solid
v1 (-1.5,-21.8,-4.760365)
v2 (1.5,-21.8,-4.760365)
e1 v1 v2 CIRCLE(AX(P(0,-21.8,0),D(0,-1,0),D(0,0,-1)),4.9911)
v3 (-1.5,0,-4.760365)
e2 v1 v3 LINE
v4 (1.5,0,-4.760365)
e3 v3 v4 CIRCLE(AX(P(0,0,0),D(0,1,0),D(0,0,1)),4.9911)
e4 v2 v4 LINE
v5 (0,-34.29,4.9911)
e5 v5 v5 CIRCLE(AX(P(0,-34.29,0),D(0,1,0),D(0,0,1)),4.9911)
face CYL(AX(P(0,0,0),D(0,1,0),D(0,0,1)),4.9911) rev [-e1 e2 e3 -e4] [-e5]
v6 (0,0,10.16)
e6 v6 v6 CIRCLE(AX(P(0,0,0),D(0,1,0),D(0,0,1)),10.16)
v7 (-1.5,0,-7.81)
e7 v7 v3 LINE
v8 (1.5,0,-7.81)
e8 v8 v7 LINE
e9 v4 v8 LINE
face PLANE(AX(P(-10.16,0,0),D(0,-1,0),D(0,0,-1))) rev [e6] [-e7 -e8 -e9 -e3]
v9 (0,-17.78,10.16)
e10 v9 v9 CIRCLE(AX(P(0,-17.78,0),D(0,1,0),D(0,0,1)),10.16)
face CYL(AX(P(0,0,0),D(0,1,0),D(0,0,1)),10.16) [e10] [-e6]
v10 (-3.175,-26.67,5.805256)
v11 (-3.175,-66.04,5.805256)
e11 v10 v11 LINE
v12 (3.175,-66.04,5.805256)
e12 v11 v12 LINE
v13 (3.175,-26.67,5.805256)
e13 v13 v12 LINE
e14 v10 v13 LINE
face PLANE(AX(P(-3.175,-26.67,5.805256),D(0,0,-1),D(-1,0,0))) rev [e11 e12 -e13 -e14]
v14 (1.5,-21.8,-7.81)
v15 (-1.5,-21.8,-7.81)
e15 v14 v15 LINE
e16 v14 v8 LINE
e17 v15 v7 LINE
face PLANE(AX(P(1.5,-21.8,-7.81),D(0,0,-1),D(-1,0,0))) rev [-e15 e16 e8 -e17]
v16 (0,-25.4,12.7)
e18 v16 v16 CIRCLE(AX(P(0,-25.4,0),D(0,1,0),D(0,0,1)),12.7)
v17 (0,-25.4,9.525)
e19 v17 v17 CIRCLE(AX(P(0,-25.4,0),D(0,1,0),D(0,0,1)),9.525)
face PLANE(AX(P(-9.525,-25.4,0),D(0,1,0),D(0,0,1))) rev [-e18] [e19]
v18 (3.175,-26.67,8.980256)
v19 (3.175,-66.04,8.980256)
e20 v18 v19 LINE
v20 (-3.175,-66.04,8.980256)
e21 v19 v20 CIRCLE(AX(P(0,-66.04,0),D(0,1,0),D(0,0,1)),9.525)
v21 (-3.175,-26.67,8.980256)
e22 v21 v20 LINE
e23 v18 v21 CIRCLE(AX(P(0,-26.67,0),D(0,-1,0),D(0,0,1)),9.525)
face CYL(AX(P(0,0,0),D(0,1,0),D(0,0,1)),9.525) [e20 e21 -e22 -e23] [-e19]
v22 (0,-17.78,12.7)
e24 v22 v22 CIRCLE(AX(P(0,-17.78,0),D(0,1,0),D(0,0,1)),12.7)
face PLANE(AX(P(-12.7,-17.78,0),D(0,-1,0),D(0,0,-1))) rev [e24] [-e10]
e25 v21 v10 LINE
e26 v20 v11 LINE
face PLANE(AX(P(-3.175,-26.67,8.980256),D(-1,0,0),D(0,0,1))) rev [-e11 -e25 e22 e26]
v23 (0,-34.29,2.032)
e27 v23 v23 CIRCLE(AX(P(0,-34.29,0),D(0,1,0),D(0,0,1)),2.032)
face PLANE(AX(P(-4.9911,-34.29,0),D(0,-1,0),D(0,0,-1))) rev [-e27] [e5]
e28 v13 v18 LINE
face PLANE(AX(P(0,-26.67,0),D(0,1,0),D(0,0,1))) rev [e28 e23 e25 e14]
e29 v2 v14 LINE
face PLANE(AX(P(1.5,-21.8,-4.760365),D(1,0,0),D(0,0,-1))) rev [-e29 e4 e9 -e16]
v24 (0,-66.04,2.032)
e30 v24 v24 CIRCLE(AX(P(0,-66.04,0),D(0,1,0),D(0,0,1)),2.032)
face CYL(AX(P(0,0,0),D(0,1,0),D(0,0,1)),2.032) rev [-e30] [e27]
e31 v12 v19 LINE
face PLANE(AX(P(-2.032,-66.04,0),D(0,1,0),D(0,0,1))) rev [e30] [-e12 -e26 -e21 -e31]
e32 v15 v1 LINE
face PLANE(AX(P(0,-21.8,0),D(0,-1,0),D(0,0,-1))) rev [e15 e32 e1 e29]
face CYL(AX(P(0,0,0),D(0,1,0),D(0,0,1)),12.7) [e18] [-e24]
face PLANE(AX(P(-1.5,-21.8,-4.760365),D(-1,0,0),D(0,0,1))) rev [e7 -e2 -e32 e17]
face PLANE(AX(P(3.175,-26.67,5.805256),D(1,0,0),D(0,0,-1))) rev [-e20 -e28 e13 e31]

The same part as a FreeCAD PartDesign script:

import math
import FreeCAD as App
import Part
import Sketcher

V = App.Vector
Q = App.Units.Quantity

doc = App.newDocument("Part")
body = doc.addObject("PartDesign::Body", "Body")

# Sketch on XY plane
sketch1 = doc.addObject("Sketcher::SketchObject", "Sketch")
body.addObject(sketch1)
sketch1.AttachmentSupport = (doc.XY_Plane, [""])
sketch1.MapMode = "FlatFace"
sketch1.addGeometry([
    Part.LineSegment(V(-4.9911, 0, 0), V(-10.16, 0, 0)),  # 0
    Part.LineSegment(V(-10.16, 0, 0), V(-10.16, -17.78, 0)),  # 1
    Part.LineSegment(V(-10.16, -17.78, 0), V(-12.7, -17.78, 0)),  # 2
    Part.LineSegment(V(-12.7, -17.78, 0), V(-12.7, -25.4, 0)),  # 3
    Part.LineSegment(V(-12.7, -25.4, 0), V(-9.525, -25.4, 0)),  # 4
    Part.LineSegment(V(-9.525, -25.4, 0), V(-9.525, -66.04, 0)),  # 5
    Part.LineSegment(V(-9.525, -66.04, 0), V(-2.032, -66.04, 0)),  # 6
    Part.LineSegment(V(-2.032, -66.04, 0), V(-2.032, -34.29, 0)),  # 7
    Part.LineSegment(V(-2.032, -34.29, 0), V(-4.9911, -34.29, 0)),  # 8
    Part.LineSegment(V(-4.9911, -34.29, 0), V(-4.9911, 0, 0)),  # 9
], False)
sketch1.addConstraint([
    Sketcher.Constraint("Coincident", 0, 2, 1, 1),
    Sketcher.Constraint("Coincident", 1, 2, 2, 1),
    Sketcher.Constraint("Coincident", 2, 2, 3, 1),
    Sketcher.Constraint("Coincident", 3, 2, 4, 1),
    Sketcher.Constraint("Coincident", 4, 2, 5, 1),
    Sketcher.Constraint("Coincident", 5, 2, 6, 1),
    Sketcher.Constraint("Coincident", 6, 2, 7, 1),
    Sketcher.Constraint("Coincident", 7, 2, 8, 1),
    Sketcher.Constraint("Coincident", 8, 2, 9, 1),
    Sketcher.Constraint("Coincident", 9, 2, 0, 1),
    Sketcher.Constraint("Horizontal", 0),
    Sketcher.Constraint("Vertical", 1),
    Sketcher.Constraint("Horizontal", 2),
    Sketcher.Constraint("Vertical", 3),
    Sketcher.Constraint("Horizontal", 4),
    Sketcher.Constraint("Vertical", 5),
    Sketcher.Constraint("Horizontal", 6),
    Sketcher.Constraint("Vertical", 7),
    Sketcher.Constraint("Horizontal", 8),
    Sketcher.Constraint("Vertical", 9),
    Sketcher.Constraint("PointOnObject", 0, 2, -1),
    Sketcher.Constraint("DistanceX", 2, 2, 2, 1, Q("0.1 in")),
    Sketcher.Constraint("DistanceY", 1, 2, 1, 1, Q("0.7 in")),
    Sketcher.Constraint("DistanceY", 3, 2, 3, 1, Q("0.3 in")),
    Sketcher.Constraint("DistanceY", 5, 2, 5, 1, Q("1.6 in")),
    Sketcher.Constraint("DistanceY", 7, 1, 7, 2, Q("1.25 in")),
    Sketcher.Constraint("DistanceX", 0, 2, -1, 1, Q("0.4 in")),
    Sketcher.Constraint("DistanceX", 4, 1, 4, 2, Q("0.125 in")),
    Sketcher.Constraint("DistanceX", 6, 1, 6, 2, Q("0.295 in")),
    Sketcher.Constraint("DistanceX", 0, 2, 0, 1, Q("0.2035 in")),
])
revolution = doc.addObject("PartDesign::Revolution", "Revolution")
body.addObject(revolution)
revolution.Profile = sketch1
revolution.ReferenceAxis = (sketch1, ["V_Axis"])
revolution.Angle = 360

# Sketch on XZ plane
sketch2 = doc.addObject("Sketcher::SketchObject", "Sketch001")
body.addObject(sketch2)
sketch2.AttachmentSupport = (doc.XZ_Plane, [""])
sketch2.MapMode = "FlatFace"
sketch2.addGeometry([
    Part.LineSegment(V(1.5, -4.760365, 0), V(1.5, -7.81, 0)),
    Part.LineSegment(V(1.5, -7.81, 0), V(-1.5, -7.81, 0)),
    Part.LineSegment(V(-1.5, -7.81, 0), V(-1.5, -4.760365, 0)),
    Part.ArcOfCircle(Part.Circle(V(0, 0, 0), V(0, 0, 1), 4.9911), math.radians(-107.489736), math.radians(-72.510264)),
], False)
sketch2.addConstraint([
    Sketcher.Constraint("Coincident", 0, 2, 1, 1),
    Sketcher.Constraint("Coincident", 1, 2, 2, 1),
    Sketcher.Constraint("Coincident", 2, 2, 3, 1),
    Sketcher.Constraint("Coincident", 3, 2, 0, 1),
    Sketcher.Constraint("Vertical", 0),
    Sketcher.Constraint("Horizontal", 1),
    Sketcher.Constraint("Vertical", 2),
    Sketcher.Constraint("Coincident", 3, 3, -1, 1),
    Sketcher.Constraint("Horizontal", 2, 2, 3, 2),
    Sketcher.Constraint("Radius", 3, Q("0.1965 in")),
    Sketcher.Constraint("DistanceX", 1, 2, 1, 1, 3.0),
    Sketcher.Constraint("DistanceY", 0, 2, -1, 1, 7.81),
])
pocket1 = doc.addObject("PartDesign::Pocket", "Pocket")
body.addObject(pocket1)
pocket1.Profile = sketch2
pocket1.Length = 21.8
pocket1.Reversed = True

# Sketch on XZ plane
sketch3 = doc.addObject("Sketcher::SketchObject", "Sketch002")
body.addObject(sketch3)
sketch3.AttachmentSupport = (doc.XZ_Plane, [""])
sketch3.MapMode = "FlatFace"
sketch3.AttachmentOffset = App.Placement(V(0, 0, 2.6 * 25.4), App.Rotation())
sketch3.addGeometry([
    Part.LineSegment(V(-3.175, 8.980256, 0), V(-3.175, 5.805256, 0)),
    Part.LineSegment(V(-3.175, 5.805256, 0), V(3.175, 5.805256, 0)),
    Part.LineSegment(V(3.175, 5.805256, 0), V(3.175, 8.980256, 0)),
    Part.ArcOfCircle(Part.Circle(V(0, 0, 0), V(0, 0, 1), 9.525), math.radians(70.528779), math.radians(109.471221)),
], False)
sketch3.addConstraint([
    Sketcher.Constraint("Coincident", 0, 2, 1, 1),
    Sketcher.Constraint("Coincident", 1, 2, 2, 1),
    Sketcher.Constraint("Coincident", 2, 2, 3, 1),
    Sketcher.Constraint("Coincident", 3, 2, 0, 1),
    Sketcher.Constraint("Vertical", 0),
    Sketcher.Constraint("Horizontal", 1),
    Sketcher.Constraint("Vertical", 2),
    Sketcher.Constraint("Coincident", 3, 3, -1, 1),
    Sketcher.Constraint("Horizontal", 2, 2, 3, 2),
    Sketcher.Constraint("Radius", 3, Q("0.375 in")),
    Sketcher.Constraint("DistanceX", 1, 1, 1, 2, Q("0.25 in")),
    Sketcher.Constraint("DistanceY", 0, 2, 0, 1, Q("0.125 in")),
])
pocket2 = doc.addObject("PartDesign::Pocket", "Pocket001")
body.addObject(pocket2)
pocket2.Profile = sketch3
pocket2.Length = Q("1.55 in")

doc.recompute()
